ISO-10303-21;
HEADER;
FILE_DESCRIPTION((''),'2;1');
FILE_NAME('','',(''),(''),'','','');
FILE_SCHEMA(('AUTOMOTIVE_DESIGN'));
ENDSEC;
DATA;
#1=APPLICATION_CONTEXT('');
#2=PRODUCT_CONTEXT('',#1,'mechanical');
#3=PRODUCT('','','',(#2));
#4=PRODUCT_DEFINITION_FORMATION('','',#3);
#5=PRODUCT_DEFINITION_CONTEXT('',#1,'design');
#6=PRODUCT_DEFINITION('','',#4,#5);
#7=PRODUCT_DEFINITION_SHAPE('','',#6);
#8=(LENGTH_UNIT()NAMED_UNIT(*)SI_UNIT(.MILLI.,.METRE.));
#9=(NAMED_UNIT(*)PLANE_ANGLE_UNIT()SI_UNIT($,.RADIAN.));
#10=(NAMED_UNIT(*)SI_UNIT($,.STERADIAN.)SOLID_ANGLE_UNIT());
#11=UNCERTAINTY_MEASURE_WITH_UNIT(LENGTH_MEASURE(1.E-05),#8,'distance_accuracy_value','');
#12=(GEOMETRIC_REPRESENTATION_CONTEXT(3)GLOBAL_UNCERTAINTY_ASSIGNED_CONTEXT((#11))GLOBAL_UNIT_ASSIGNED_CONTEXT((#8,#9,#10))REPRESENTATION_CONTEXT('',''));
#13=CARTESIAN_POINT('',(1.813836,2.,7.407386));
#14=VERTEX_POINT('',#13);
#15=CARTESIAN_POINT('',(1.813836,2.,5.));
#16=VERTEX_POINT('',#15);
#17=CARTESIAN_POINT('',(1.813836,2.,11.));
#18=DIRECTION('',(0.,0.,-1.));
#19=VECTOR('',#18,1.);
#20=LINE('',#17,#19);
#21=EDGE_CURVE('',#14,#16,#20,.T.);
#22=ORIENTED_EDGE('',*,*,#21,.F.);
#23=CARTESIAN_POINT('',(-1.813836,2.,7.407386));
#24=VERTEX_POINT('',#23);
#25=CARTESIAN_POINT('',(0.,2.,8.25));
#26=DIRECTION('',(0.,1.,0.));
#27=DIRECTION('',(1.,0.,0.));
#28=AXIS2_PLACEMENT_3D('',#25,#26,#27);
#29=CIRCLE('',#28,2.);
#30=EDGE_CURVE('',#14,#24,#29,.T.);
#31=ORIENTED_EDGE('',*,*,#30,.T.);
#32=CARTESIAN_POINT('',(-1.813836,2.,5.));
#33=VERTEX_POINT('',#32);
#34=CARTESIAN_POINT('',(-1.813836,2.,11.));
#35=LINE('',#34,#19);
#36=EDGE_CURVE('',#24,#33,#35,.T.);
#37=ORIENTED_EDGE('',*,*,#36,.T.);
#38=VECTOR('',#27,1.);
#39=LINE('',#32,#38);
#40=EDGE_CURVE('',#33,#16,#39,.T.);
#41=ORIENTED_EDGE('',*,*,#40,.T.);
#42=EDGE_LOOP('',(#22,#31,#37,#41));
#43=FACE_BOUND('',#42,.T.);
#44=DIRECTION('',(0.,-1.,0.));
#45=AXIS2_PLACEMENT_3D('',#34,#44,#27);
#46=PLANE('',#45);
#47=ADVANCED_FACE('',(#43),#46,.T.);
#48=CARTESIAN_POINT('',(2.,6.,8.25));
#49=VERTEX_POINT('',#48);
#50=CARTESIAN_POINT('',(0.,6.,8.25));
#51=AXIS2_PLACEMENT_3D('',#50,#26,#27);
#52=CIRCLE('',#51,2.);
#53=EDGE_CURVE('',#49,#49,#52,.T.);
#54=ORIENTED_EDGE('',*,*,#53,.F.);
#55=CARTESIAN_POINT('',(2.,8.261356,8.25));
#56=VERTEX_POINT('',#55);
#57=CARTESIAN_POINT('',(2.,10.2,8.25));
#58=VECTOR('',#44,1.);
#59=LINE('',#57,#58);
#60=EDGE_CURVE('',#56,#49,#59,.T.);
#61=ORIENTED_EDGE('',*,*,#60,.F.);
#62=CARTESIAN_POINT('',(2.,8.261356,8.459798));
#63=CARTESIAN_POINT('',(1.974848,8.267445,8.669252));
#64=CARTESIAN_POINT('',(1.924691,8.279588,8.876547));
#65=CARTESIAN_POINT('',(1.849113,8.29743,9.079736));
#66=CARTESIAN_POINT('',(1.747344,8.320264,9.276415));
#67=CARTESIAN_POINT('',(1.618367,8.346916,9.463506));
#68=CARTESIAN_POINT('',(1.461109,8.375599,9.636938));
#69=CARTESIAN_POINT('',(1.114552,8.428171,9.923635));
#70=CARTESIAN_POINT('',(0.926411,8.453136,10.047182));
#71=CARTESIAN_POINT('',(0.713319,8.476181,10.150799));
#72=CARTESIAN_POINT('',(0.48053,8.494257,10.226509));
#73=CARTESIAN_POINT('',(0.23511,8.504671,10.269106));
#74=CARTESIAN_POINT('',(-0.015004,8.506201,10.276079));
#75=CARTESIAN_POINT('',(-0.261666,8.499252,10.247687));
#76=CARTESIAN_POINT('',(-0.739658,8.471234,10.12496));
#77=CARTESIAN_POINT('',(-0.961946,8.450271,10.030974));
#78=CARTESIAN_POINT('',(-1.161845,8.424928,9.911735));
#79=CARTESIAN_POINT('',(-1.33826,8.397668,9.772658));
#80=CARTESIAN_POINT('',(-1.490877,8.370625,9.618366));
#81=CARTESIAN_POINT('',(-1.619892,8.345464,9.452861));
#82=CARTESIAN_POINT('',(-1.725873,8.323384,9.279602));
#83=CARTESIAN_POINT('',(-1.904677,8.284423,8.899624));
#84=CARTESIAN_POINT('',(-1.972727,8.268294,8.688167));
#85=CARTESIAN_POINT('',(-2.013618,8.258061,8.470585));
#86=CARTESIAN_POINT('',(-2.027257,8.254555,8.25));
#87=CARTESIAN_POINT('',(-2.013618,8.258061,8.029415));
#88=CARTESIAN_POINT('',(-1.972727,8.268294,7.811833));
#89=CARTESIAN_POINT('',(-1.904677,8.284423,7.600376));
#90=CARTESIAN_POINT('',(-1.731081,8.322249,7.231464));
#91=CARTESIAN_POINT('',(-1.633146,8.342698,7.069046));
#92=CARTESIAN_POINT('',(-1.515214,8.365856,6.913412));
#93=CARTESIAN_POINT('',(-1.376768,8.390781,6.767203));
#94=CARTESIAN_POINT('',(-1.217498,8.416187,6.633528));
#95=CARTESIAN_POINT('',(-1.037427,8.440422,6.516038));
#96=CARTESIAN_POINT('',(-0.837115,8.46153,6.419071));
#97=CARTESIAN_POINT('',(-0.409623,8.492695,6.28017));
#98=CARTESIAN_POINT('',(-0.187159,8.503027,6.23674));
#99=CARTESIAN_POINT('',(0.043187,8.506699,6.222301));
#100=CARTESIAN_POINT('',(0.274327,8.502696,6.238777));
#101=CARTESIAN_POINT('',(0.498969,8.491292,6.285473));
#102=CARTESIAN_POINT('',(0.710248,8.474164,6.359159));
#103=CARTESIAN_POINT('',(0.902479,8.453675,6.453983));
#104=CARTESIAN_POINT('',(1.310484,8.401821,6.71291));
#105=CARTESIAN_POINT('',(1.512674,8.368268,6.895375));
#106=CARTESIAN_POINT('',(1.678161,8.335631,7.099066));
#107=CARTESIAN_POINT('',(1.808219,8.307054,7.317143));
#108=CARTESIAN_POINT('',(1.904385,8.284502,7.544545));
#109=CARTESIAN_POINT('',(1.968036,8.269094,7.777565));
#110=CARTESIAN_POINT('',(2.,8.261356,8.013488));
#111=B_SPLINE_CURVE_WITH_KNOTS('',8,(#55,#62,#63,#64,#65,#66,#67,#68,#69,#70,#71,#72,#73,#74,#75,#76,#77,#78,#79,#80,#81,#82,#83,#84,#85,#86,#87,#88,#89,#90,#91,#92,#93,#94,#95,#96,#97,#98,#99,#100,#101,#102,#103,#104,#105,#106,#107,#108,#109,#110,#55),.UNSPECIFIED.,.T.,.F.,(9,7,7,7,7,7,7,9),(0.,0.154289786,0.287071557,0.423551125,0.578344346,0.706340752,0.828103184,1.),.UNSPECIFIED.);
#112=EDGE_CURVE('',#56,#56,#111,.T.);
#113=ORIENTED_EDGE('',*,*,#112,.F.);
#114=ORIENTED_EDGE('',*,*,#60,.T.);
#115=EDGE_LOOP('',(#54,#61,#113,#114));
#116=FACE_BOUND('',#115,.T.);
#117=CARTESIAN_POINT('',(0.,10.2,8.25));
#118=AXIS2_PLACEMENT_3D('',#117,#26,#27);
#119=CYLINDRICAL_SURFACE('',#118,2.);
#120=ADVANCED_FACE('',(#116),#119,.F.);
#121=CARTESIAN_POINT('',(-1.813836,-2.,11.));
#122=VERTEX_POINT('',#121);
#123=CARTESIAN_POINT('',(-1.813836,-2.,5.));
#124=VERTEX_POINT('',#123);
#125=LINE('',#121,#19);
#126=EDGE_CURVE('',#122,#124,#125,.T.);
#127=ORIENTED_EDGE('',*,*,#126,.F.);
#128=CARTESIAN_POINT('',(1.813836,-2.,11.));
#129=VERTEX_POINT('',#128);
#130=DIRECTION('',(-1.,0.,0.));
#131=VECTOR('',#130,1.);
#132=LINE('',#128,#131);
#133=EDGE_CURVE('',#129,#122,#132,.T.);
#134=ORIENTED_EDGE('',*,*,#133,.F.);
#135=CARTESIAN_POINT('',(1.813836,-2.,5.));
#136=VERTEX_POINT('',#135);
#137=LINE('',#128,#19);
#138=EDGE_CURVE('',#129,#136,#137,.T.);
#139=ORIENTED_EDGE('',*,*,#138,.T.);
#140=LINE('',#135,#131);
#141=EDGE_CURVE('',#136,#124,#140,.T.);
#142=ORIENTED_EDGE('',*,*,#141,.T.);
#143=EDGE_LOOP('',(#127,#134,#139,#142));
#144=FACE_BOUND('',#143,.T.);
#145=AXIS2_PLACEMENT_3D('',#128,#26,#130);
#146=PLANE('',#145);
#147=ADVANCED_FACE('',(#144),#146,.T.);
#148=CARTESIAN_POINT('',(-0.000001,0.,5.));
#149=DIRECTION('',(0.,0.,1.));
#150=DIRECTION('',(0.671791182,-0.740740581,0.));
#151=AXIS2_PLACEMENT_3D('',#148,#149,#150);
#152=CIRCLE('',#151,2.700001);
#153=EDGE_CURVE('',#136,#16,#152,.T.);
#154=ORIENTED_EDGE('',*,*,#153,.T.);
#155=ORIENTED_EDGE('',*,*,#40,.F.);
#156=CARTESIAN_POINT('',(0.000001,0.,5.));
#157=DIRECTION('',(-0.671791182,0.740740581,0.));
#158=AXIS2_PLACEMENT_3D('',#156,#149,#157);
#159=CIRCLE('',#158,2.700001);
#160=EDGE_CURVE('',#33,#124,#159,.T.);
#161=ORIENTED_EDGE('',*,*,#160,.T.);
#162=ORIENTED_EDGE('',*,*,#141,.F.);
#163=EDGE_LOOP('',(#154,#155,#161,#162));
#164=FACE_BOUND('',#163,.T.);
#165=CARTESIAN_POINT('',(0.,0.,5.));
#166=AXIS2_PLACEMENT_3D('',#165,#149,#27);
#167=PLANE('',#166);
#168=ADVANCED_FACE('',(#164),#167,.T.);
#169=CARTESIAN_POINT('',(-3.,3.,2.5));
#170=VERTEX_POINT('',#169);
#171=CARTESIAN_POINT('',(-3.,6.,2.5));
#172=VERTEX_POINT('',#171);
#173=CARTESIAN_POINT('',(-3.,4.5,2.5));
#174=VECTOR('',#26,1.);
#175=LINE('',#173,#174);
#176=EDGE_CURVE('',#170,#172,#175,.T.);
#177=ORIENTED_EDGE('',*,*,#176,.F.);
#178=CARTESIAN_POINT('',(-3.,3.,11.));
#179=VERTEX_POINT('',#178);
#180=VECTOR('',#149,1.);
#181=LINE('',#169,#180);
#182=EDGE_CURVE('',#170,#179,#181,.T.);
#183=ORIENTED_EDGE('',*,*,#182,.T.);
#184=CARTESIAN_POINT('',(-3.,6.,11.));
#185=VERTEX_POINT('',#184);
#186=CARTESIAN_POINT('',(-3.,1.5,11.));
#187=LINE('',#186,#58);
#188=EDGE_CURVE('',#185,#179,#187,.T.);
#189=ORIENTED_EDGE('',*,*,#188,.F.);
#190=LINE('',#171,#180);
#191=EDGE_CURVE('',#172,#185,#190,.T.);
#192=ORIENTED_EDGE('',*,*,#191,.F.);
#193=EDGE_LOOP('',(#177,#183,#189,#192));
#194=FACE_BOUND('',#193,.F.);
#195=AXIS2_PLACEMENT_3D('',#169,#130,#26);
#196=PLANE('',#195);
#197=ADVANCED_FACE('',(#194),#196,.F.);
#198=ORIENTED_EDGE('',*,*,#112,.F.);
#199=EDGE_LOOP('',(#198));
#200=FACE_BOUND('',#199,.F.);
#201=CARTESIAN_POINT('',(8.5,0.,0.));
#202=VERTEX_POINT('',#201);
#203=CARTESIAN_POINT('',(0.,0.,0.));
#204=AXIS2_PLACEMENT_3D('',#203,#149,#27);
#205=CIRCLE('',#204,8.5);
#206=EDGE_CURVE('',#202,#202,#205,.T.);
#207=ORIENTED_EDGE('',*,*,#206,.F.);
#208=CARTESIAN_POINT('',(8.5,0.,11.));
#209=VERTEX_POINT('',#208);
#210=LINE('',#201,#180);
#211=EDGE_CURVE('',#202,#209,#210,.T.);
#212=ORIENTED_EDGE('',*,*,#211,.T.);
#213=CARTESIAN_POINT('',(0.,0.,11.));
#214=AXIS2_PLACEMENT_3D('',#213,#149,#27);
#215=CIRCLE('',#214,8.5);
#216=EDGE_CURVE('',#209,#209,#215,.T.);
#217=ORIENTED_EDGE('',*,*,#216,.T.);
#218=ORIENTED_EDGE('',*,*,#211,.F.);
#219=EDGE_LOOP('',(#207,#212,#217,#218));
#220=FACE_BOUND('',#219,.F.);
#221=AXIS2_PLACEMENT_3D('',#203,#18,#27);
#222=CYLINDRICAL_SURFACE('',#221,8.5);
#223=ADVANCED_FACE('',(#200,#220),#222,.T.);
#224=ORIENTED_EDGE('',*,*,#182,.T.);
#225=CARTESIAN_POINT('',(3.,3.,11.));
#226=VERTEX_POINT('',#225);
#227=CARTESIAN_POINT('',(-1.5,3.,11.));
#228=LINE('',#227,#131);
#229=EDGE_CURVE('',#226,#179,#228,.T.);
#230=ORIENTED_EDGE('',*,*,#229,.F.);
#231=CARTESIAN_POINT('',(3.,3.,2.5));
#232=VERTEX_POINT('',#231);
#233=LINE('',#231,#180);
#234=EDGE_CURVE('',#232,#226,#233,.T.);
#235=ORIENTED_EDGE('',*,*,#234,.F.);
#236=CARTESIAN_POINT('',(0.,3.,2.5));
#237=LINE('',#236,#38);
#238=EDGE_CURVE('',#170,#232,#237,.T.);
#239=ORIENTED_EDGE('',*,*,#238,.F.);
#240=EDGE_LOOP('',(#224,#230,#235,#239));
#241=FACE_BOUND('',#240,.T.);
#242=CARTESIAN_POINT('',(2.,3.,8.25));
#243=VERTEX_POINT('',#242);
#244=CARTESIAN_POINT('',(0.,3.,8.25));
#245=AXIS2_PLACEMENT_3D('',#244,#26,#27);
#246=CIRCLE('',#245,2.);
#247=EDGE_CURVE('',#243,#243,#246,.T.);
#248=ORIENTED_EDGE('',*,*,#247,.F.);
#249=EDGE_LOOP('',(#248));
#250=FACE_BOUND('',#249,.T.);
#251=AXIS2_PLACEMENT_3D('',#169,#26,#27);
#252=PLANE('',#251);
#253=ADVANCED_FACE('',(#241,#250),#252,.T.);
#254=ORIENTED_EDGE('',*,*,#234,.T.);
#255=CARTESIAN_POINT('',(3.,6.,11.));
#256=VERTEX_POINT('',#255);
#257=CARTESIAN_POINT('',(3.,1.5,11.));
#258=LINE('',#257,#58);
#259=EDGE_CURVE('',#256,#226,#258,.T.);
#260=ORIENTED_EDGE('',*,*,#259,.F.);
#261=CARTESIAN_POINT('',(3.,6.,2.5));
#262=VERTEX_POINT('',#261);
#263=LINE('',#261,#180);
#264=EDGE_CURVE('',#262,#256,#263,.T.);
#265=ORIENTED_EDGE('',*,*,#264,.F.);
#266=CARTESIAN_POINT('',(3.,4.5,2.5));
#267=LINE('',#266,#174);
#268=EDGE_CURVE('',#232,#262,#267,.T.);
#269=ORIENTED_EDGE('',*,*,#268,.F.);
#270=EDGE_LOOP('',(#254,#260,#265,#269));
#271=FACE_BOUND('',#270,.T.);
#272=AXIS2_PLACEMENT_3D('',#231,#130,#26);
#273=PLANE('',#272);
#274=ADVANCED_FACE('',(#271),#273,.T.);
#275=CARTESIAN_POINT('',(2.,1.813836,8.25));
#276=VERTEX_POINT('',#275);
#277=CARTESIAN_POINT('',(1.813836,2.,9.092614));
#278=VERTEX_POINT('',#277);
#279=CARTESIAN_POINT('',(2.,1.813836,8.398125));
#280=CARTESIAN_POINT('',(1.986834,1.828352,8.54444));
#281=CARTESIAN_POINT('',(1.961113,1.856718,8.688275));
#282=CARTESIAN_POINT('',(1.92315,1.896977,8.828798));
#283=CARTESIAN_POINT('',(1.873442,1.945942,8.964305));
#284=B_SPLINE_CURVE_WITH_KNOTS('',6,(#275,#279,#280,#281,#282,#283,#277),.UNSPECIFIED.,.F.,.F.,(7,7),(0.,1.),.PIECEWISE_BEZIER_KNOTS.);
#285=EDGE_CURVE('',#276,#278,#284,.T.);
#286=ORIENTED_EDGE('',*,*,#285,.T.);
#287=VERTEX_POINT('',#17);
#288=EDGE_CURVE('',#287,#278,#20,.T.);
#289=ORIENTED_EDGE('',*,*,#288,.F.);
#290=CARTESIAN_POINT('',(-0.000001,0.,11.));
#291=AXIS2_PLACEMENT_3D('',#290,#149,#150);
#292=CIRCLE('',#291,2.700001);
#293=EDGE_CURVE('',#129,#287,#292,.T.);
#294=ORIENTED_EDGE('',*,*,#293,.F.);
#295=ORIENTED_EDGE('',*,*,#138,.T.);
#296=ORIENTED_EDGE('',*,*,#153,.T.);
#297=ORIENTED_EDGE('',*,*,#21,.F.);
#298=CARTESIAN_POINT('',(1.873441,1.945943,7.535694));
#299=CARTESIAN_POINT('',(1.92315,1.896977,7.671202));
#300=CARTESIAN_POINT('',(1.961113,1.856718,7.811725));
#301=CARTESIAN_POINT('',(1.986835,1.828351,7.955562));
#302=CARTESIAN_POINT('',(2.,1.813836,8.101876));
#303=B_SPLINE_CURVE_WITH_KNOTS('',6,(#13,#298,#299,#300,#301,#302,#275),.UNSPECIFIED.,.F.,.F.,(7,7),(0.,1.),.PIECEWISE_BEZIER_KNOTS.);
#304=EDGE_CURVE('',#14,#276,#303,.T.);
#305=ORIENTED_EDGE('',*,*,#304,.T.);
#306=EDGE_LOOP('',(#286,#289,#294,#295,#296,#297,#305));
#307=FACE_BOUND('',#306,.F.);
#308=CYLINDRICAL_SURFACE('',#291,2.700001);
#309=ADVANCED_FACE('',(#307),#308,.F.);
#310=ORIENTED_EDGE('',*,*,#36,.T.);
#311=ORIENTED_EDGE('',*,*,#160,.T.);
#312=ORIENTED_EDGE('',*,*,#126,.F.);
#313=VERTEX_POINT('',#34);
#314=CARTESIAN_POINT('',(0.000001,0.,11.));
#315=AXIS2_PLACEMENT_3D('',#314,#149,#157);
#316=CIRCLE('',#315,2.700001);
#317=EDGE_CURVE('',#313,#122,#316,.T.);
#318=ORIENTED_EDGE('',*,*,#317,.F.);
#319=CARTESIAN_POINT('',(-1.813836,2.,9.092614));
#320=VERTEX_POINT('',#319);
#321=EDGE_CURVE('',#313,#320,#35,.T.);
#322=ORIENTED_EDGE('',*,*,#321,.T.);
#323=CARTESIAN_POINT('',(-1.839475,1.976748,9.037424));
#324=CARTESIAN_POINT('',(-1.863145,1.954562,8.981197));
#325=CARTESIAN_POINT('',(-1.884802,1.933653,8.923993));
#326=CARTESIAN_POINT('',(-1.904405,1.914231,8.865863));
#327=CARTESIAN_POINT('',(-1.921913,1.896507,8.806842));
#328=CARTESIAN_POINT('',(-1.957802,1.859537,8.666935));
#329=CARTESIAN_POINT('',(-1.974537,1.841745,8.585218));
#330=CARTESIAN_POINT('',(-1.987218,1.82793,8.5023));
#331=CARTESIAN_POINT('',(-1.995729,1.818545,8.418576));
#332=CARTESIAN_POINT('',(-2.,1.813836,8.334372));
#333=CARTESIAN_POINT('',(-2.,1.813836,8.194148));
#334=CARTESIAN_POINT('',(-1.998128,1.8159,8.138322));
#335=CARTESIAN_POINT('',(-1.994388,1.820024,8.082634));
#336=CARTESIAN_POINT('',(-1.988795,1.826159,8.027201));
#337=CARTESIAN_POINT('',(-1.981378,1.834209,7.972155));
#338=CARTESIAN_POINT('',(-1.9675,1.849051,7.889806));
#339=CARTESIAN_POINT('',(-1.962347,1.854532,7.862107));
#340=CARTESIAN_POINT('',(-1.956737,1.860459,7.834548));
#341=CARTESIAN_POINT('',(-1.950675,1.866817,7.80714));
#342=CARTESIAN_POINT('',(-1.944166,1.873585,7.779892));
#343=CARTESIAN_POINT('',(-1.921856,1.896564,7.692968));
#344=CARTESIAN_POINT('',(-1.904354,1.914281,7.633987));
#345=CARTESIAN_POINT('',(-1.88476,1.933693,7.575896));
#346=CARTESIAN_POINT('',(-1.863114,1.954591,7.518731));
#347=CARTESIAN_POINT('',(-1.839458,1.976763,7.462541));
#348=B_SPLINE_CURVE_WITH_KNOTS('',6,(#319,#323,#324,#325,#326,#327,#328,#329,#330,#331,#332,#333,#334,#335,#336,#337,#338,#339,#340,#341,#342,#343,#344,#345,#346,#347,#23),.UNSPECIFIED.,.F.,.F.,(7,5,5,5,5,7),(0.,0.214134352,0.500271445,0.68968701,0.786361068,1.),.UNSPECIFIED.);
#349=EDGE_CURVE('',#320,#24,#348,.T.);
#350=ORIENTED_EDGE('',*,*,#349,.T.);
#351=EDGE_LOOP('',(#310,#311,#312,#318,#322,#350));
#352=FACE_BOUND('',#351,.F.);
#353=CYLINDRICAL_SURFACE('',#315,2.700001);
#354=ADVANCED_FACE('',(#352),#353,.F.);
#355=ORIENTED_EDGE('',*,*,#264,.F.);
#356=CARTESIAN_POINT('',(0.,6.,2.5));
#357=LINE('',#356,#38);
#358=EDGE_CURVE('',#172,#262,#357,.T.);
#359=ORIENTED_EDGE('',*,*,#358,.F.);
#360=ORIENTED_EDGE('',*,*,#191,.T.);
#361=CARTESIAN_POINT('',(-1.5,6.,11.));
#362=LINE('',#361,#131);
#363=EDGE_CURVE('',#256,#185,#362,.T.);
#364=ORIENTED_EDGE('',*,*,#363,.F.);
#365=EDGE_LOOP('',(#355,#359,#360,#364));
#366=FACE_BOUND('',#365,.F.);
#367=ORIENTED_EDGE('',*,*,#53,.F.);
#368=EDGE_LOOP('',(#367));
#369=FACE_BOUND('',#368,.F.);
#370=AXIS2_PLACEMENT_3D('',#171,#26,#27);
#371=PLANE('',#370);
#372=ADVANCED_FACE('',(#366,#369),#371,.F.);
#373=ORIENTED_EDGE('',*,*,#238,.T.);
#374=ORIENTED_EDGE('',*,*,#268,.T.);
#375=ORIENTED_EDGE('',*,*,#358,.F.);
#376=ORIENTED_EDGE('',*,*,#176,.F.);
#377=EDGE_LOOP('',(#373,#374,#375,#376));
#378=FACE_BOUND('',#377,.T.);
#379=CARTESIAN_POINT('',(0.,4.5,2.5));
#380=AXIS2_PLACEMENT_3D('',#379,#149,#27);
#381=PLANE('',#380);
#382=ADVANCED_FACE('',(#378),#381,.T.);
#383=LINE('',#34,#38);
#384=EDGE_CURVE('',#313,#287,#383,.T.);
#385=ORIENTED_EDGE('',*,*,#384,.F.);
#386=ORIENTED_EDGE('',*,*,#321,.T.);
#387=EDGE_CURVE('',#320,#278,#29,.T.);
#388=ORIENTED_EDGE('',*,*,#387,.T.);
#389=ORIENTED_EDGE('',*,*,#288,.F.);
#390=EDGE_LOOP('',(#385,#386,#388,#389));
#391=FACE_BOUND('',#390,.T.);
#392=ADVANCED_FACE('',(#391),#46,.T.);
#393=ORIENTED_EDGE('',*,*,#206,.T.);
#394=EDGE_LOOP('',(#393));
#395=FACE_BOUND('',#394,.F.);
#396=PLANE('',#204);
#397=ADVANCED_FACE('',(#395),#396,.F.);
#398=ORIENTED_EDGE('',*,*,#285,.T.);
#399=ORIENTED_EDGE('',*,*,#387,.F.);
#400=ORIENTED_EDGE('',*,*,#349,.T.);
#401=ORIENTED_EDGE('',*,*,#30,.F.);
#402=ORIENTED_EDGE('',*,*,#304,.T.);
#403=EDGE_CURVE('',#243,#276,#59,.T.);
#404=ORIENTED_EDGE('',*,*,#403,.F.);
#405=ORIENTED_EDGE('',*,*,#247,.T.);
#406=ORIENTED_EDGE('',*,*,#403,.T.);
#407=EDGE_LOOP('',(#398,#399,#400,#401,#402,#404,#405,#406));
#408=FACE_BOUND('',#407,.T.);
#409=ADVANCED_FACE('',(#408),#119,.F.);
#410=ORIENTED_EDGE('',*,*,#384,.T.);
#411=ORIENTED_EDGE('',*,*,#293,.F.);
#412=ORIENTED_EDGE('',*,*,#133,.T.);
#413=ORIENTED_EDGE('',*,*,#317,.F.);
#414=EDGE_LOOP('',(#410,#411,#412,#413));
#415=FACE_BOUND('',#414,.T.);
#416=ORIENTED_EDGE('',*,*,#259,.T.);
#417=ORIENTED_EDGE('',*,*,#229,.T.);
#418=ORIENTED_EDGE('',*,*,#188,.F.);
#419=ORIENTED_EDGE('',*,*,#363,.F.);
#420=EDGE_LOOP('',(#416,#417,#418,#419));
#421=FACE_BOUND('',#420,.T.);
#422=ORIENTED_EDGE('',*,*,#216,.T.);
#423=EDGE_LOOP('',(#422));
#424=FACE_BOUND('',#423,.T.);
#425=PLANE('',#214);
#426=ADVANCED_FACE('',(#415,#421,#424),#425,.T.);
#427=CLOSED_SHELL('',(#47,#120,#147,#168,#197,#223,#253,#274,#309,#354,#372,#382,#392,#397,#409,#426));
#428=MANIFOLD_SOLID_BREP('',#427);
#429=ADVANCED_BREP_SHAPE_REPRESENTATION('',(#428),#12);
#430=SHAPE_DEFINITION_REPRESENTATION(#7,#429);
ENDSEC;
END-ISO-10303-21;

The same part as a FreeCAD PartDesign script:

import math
import FreeCAD as App
import Part
import Sketcher
Q = App.Units.Quantity


def add_polygon(sketch, points):
    """Adds a closed chain of lines whose ends are joined by coincident constraints."""
    first, n = sketch.GeometryCount, len(points)
    for a, b in zip(points, points[1:] + points[:1]):
        sketch.addGeometry(Part.LineSegment(App.Vector(*a, 0), App.Vector(*b, 0)), False)
    for i in range(n):
        sketch.addConstraint(Sketcher.Constraint("Coincident", first + i, 2, first + (i + 1) % n, 1))

doc = App.newDocument("Part")
body = doc.addObject("PartDesign::Body", "Body")

sketch1 = body.newObject("Sketcher::SketchObject", "Sketch")
sketch1.AttachmentSupport = (doc.getObject("XZ_Plane"), [""])
sketch1.MapMode = "FlatFace"
sketch1.AttachmentOffset = App.Placement(App.Vector(0, 0, -10.2), App.Rotation())
sketch1.addGeometry(Part.Circle(App.Vector(0, 8.2, 0), App.Vector(0, 0, 1), 2), False)
sketch1.addConstraint([
    Sketcher.Constraint("PointOnObject", 0, 3, -2),
    Sketcher.Constraint("Diameter", 0, Q("4 mm")),
    Sketcher.Constraint("DistanceY", -1, 1, 0, 3, Q("8.25 mm")),
])
pad1 = body.newObject("PartDesign::Pad", "Pad")
pad1.Profile = sketch1
pad1.Length = 10
body2 = doc.addObject("PartDesign::Body", "Body001")

sketch2 = body2.newObject("Sketcher::SketchObject", "Sketch001")
sketch2.AttachmentSupport = (doc.getObject("XY_Plane001"), [""])
sketch2.MapMode = "FlatFace"
sketch2.AttachmentOffset = App.Placement(App.Vector(0, 0, 2.5), App.Rotation())
add_polygon(sketch2, [(-3, 6), (-3, 3), (3, 3), (3, 6)])
sketch2.addConstraint([
    Sketcher.Constraint("Vertical", 0),
    Sketcher.Constraint("Horizontal", 1),
    Sketcher.Constraint("Vertical", 2),
    Sketcher.Constraint("Horizontal", 3),
    Sketcher.Constraint("DistanceX", 1, 1, 1, 2, Q("6 mm")),
    Sketcher.Constraint("DistanceY", 0, 2, 0, 1, Q("3 mm")),
    Sketcher.Constraint("DistanceX", 0, 2, -1, 1, Q("3 mm")),
    Sketcher.Constraint("DistanceY", -1, 1, 0, 2, Q("3 mm")),
])
pad2 = body2.newObject("PartDesign::Pad", "Pad001")
pad2.Profile = sketch2
pad2.Length = 10
body3 = doc.addObject("PartDesign::Body", "Body002")

sketch3 = body3.newObject("Sketcher::SketchObject", "Sketch002")
sketch3.AttachmentSupport = (doc.getObject("XY_Plane002"), [""])
sketch3.MapMode = "FlatFace"
sketch3.addGeometry(Part.Circle(App.Vector(0, 0, 0), App.Vector(0, 0, 1), 8), False)
sketch3.addConstraint([
    Sketcher.Constraint("Coincident", 0, 3, -1, 1),
    Sketcher.Constraint("Diameter", 0, Q("17 mm")),
])
pad3 = body3.newObject("PartDesign::Pad", "Pad002")
pad3.Profile = sketch3
pad3.Length = 11
doc.recompute()

boolean = body3.newObject("PartDesign::Boolean", "Boolean")
boolean.Type = "Cut"
boolean.addObjects([body2])
doc.recompute()

boolean2 = body3.newObject("PartDesign::Boolean", "Boolean001")
boolean2.Type = "Cut"
boolean2.addObjects([body])
body4 = doc.addObject("PartDesign::Body", "Body003")
doc.recompute()

body3.Placement = App.Placement(App.Vector(0, 0, -1), App.Rotation(App.Vector(0, 0, 1), 0))
boolean3 = body4.newObject("PartDesign::Boolean", "Boolean002")
boolean3.Type = "Fuse"
boolean3.addObjects([body3])
body5 = doc.addObject("PartDesign::Body", "Body004")
doc.recompute()

body4.Placement = App.Placement(App.Vector(0, 0, 1), App.Rotation(App.Vector(0, 0, 1), 0))
boolean4 = body5.newObject("PartDesign::Boolean", "Boolean003")
boolean4.Type = "Fuse"
boolean4.addObjects([body4])

sketch4 = body5.newObject("Sketcher::SketchObject", "Sketch003")
sketch4.AttachmentSupport = (doc.getObject("XY_Plane004"), [""])
sketch4.MapMode = "FlatFace"
sketch4.AttachmentOffset = App.Placement(App.Vector(0, 0, 11), App.Rotation())
sketch4.addGeometry([
    Part.ArcOfCircle(Part.Circle(App.Vector(0, 0, 0), App.Vector(0, 0, 1), 2.7), math.radians(132), math.radians(228)),
    Part.LineSegment(App.Vector(-1.8, -2, 0), App.Vector(1.8, -2, 0)),
    Part.ArcOfCircle(Part.Circle(App.Vector(0, 0, 0), App.Vector(0, 0, 1), 2.7), math.radians(-48), math.radians(48)),
    Part.LineSegment(App.Vector(1.8, 2, 0), App.Vector(-1.8, 2, 0)),
], False)
sketch4.addConstraint([
    Sketcher.Constraint("Coincident", 0, 2, 1, 1),
    Sketcher.Constraint("Coincident", 1, 2, 2, 1),
    Sketcher.Constraint("Coincident", 2, 2, 3, 1),
    Sketcher.Constraint("Coincident", 3, 2, 0, 1),
    Sketcher.Constraint("Horizontal", 1),
    Sketcher.Constraint("Horizontal", 3),
    Sketcher.Constraint("Coincident", 0, 3, -1, 1),
    Sketcher.Constraint("Coincident", 2, 3, -1, 1),
    Sketcher.Constraint("Equal", 0, 2),
    Sketcher.Constraint("Vertical", 1, 2, 2, 2),
    Sketcher.Constraint("Radius", 0, Q("2.700001 mm")),
    Sketcher.Constraint("DistanceY", 0, 2, -1, 1, Q("2 mm")),
])
pocket1 = body5.newObject("PartDesign::Pocket", "Pocket")
pocket1.Profile = sketch4
pocket1.Length = 6

doc.recompute()
